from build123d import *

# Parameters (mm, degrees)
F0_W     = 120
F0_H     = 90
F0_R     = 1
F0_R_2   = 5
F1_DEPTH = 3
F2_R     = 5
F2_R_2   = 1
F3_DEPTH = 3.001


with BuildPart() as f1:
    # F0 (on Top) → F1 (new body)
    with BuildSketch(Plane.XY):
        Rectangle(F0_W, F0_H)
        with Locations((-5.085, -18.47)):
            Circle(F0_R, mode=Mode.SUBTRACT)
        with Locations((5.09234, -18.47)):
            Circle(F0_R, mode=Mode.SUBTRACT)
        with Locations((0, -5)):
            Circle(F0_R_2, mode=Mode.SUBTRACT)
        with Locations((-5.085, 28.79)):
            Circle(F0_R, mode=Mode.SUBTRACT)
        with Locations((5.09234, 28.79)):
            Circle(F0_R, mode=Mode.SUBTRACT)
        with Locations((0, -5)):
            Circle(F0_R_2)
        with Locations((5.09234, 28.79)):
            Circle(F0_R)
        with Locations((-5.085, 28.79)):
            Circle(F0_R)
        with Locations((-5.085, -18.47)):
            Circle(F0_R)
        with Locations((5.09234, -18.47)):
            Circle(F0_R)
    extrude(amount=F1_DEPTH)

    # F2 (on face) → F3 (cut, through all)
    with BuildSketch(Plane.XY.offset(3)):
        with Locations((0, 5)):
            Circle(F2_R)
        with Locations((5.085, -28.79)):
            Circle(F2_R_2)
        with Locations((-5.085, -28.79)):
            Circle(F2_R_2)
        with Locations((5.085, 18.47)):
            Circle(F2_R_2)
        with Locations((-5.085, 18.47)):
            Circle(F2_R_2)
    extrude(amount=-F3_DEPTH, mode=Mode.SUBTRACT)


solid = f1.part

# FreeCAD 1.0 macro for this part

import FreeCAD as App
import Part
import Sketcher

V = App.Vector
Q = App.Units.Quantity


def add_polygon(sketch, points):
    """Adds a closed chain of lines whose ends are joined by coincident constraints."""
    first, n = sketch.GeometryCount, len(points)
    for a, b in zip(points, points[1:] + points[:1]):
        sketch.addGeometry(Part.LineSegment(App.Vector(*a, 0), App.Vector(*b, 0)), False)
    for i in range(n):
        sketch.addConstraint(Sketcher.Constraint("Coincident", first + i, 2, first + (i + 1) % n, 1))

doc = App.newDocument("Part")
body = doc.addObject("PartDesign::Body", "Body")

# Sketch on XY plane
sketch1 = body.newObject("Sketcher::SketchObject", "Sketch")
sketch1.AttachmentSupport = (doc.getObject("XY_Plane"), [""])
sketch1.MapMode = "FlatFace"
add_polygon(sketch1, [(-60, 45), (-60, -45), (60, -45), (60, 45)])  # lines 0-3
sketch1.addConstraint(Sketcher.Constraint("Vertical", 0))
sketch1.addConstraint(Sketcher.Constraint("Horizontal", 1))
sketch1.addConstraint(Sketcher.Constraint("Vertical", 2))
sketch1.addConstraint(Sketcher.Constraint("Horizontal", 3))
sketch1.addConstraint(Sketcher.Constraint("Symmetric", 0, 2, 2, 2, -1, 1))
sketch1.addConstraint(Sketcher.Constraint("DistanceX", 1, 1, 1, 2, Q("120 mm")))
sketch1.addConstraint(Sketcher.Constraint("DistanceY", 0, 2, 0, 1, Q("90 mm")))
pad1 = body.newObject("PartDesign::Pad", "Pad")
pad1.Profile = sketch1
pad1.Length = 3

# Sketch on XY plane
sketch2 = body.newObject("Sketcher::SketchObject", "Sketch001")
sketch2.AttachmentSupport = (doc.getObject("XY_Plane"), [""])
sketch2.MapMode = "FlatFace"
sketch2.AttachmentOffset = App.Placement(V(0, 0, 3), App.Rotation())
sketch2.addGeometry(Part.Circle(V(0, 5, 0), V(0, 0, 1), 5), False)
sketch2.addGeometry(Part.Circle(V(5.1, -28.8, 0), V(0, 0, 1), 1), False)
sketch2.addGeometry(Part.Circle(V(-5.1, -28.8, 0), V(0, 0, 1), 1), False)
sketch2.addGeometry(Part.Circle(V(5.1, 18.5, 0), V(0, 0, 1), 1), False)
sketch2.addGeometry(Part.Circle(V(-5.1, 18.5, 0), V(0, 0, 1), 1), False)
sketch2.addConstraint(Sketcher.Constraint("Equal", 1, 2))
sketch2.addConstraint(Sketcher.Constraint("Equal", 2, 3))
sketch2.addConstraint(Sketcher.Constraint("Equal", 3, 4))
sketch2.addConstraint(Sketcher.Constraint("Symmetric", 1, 3, 2, 3, -2))
sketch2.addConstraint(Sketcher.Constraint("Symmetric", 3, 3, 4, 3, -2))
sketch2.addConstraint(Sketcher.Constraint("PointOnObject", 0, 3, -2))
sketch2.addConstraint(Sketcher.Constraint("Vertical", 1, 3, 3, 3))
sketch2.addConstraint(Sketcher.Constraint("Diameter", 0, Q("10 mm")))
sketch2.addConstraint(Sketcher.Constraint("Diameter", 1, Q("2 mm")))
sketch2.addConstraint(Sketcher.Constraint("DistanceY", -1, 1, 0, 3, Q("5 mm")))
sketch2.addConstraint(Sketcher.Constraint("DistanceY", 1, 3, -1, 1, Q("28.79 mm")))
sketch2.addConstraint(Sketcher.Constraint("DistanceY", -1, 1, 3, 3, Q("18.47 mm")))
sketch2.addConstraint(Sketcher.Constraint("DistanceX", 2, 3, 1, 3, Q("10.17 mm")))
pocket1 = body.newObject("PartDesign::Pocket", "Pocket")
pocket1.Profile = sketch2
pocket1.Type = "ThroughAll"

doc.recompute()
